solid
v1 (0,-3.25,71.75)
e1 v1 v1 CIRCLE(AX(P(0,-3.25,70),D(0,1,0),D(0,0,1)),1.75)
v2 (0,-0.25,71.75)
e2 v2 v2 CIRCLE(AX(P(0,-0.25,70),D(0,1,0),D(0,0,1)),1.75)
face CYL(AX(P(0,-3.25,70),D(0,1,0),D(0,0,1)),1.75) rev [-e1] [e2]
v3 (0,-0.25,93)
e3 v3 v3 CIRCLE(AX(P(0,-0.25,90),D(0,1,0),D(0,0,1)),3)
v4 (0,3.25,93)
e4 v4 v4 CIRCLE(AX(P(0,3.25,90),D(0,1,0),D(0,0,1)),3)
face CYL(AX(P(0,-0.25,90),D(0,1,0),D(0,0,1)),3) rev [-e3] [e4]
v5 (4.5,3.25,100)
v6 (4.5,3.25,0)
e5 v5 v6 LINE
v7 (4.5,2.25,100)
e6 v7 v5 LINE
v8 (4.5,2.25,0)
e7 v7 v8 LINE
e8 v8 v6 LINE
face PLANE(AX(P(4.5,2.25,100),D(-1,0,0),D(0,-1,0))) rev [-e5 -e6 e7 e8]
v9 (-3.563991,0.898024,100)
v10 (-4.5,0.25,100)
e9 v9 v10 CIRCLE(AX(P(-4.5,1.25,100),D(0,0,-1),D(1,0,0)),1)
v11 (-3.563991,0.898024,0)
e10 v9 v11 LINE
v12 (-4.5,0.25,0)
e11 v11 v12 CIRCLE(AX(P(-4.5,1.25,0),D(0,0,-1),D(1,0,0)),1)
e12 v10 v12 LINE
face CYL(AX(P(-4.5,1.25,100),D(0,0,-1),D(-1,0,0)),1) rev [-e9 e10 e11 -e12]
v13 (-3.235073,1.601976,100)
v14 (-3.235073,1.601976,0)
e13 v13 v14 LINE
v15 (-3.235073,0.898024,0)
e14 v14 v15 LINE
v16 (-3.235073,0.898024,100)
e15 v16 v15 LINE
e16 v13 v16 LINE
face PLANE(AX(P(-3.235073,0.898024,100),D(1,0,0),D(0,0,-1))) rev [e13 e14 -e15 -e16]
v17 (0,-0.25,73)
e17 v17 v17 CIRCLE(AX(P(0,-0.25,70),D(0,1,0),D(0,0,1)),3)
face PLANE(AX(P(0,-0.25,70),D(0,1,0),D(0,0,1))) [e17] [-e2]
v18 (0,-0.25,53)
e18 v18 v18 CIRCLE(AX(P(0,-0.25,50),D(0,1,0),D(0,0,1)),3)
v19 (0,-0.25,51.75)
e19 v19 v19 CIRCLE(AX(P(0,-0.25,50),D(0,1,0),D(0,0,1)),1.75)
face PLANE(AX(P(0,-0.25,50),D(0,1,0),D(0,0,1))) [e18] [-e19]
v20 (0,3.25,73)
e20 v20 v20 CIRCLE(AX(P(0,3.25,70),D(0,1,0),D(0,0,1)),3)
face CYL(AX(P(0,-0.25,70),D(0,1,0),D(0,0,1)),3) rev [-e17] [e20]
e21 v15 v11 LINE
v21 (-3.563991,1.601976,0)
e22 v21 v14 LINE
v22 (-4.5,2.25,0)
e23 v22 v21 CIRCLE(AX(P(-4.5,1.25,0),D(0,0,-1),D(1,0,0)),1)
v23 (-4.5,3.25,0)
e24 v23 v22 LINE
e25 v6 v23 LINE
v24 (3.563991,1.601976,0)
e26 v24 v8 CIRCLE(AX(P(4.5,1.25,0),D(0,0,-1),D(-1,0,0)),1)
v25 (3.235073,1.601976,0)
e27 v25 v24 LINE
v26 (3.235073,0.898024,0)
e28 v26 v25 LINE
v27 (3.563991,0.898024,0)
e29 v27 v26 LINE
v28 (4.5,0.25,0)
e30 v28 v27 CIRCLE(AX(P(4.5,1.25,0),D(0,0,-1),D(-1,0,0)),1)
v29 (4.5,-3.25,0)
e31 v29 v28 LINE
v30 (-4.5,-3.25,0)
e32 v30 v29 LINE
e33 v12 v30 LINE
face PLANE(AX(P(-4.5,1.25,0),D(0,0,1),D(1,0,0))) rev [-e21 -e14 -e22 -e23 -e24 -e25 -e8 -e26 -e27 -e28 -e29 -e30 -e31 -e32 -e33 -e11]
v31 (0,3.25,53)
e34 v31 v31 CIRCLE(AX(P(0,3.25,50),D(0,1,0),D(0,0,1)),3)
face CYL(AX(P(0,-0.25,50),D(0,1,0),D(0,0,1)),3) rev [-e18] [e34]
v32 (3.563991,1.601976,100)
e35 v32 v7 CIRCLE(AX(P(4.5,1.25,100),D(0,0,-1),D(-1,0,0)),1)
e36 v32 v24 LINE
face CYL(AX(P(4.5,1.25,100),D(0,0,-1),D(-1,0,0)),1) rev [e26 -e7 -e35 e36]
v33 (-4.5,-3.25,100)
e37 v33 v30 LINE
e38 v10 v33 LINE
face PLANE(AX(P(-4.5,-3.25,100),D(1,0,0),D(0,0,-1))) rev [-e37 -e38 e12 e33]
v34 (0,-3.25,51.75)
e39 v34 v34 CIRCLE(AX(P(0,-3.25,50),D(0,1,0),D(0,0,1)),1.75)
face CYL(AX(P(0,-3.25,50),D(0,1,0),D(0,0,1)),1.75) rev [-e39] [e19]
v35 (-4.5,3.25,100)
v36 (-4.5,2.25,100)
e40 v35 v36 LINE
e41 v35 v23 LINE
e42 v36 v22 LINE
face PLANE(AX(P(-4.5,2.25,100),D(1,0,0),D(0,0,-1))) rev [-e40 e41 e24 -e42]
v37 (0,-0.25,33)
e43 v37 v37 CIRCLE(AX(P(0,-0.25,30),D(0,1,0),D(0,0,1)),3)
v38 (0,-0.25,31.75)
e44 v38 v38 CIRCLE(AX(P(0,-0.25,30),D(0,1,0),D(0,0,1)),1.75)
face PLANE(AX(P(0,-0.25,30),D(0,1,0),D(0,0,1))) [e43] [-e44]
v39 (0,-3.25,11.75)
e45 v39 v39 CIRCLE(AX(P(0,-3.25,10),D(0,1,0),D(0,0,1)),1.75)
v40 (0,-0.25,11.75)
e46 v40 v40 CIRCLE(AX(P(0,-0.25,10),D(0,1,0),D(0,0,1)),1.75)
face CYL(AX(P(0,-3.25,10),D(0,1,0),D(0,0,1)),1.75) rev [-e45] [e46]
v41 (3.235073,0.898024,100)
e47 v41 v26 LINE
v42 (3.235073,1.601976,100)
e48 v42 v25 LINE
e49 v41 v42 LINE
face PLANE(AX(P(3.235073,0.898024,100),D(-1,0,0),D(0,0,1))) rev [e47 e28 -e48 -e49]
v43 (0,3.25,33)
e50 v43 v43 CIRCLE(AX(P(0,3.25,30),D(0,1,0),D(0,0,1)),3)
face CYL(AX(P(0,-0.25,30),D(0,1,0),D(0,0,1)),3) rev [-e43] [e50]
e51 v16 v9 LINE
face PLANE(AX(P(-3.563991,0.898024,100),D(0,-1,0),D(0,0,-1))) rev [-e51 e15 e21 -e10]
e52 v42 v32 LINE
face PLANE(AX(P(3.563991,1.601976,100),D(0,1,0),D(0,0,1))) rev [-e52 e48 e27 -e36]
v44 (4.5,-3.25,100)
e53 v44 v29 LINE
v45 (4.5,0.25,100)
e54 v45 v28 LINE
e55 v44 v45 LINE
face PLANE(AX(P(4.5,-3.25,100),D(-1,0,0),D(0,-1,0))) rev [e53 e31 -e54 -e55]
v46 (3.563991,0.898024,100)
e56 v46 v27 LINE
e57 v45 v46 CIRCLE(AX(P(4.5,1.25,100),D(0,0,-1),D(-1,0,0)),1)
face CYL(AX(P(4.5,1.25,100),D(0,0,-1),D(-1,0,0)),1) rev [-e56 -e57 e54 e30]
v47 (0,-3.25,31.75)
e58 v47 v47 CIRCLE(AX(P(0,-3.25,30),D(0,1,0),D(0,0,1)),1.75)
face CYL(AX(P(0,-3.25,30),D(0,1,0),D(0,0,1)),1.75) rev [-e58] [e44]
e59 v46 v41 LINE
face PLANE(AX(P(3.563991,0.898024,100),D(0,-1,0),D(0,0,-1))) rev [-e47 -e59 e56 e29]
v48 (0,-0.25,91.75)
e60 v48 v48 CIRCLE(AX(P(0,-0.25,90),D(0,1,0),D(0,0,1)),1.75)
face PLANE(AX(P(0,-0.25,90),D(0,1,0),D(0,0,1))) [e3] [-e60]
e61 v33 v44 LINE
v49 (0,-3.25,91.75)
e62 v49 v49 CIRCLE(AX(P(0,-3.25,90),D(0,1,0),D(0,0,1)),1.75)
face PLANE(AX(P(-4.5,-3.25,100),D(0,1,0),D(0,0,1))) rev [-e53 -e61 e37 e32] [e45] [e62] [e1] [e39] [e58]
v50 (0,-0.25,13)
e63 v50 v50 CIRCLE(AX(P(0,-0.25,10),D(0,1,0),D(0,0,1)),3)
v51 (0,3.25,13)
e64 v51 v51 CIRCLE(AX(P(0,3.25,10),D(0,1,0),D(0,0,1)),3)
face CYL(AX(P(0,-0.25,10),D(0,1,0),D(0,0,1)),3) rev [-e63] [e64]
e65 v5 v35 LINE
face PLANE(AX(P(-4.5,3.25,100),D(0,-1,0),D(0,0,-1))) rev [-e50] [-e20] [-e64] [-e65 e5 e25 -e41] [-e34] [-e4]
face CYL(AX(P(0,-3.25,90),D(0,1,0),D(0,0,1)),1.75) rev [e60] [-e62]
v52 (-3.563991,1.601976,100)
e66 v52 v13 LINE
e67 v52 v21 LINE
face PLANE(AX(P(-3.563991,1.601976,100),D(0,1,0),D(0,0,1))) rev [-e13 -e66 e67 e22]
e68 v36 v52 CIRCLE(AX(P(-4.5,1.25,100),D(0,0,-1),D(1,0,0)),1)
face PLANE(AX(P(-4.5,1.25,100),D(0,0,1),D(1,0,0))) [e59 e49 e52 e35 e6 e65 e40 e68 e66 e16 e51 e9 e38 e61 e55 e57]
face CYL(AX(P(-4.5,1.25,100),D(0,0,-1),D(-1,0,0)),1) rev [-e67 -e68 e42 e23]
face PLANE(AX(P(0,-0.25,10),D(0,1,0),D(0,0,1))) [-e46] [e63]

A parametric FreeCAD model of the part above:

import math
import FreeCAD as App
import Part
import Sketcher
from FreeCAD import Vector
Q = App.Units.Quantity

doc = App.newDocument("Part")
body = doc.addObject("PartDesign::Body", "Body")

# Sketch on XY plane
sketch1 = body.newObject("Sketcher::SketchObject", "Sketch")
sketch1.AttachmentSupport = (doc.getObject("XY_Plane"), [""])
sketch1.MapMode = "FlatFace"
sketch1.addGeometry([
    Part.LineSegment(Vector(-4.5, -3.25, 0), Vector(4.5, -3.25, 0)),  # 0
    Part.LineSegment(Vector(4.5, -3.25, 0), Vector(4.5, 0.25, 0)),  # 1
    Part.ArcOfCircle(Part.Circle(Vector(4.5, 1.25, 0), Vector(0, 0, 1), 1), math.radians(-159.39175), math.radians(-90)),  # 2
    Part.LineSegment(Vector(3.563991, 0.898024, 0), Vector(3.235073, 0.898024, 0)),  # 3
    Part.LineSegment(Vector(3.235073, 0.898024, 0), Vector(3.235073, 1.601976, 0)),  # 4
    Part.LineSegment(Vector(3.235073, 1.601976, 0), Vector(3.563991, 1.601976, 0)),  # 5
    Part.ArcOfCircle(Part.Circle(Vector(4.5, 1.25, 0), Vector(0, 0, 1), 1), math.radians(90), math.radians(159.39175)),  # 6
    Part.LineSegment(Vector(4.5, 2.25, 0), Vector(4.5, 3.25, 0)),  # 7
    Part.LineSegment(Vector(4.5, 3.25, 0), Vector(-4.5, 3.25, 0)),  # 8
    Part.LineSegment(Vector(-4.5, 3.25, 0), Vector(-4.5, 2.25, 0)),  # 9
    Part.ArcOfCircle(Part.Circle(Vector(-4.5, 1.25, 0), Vector(0, 0, 1), 1), math.radians(20.60825), math.radians(90)),  # 10
    Part.LineSegment(Vector(-3.563991, 1.601976, 0), Vector(-3.235073, 1.601976, 0)),  # 11
    Part.LineSegment(Vector(-3.235073, 1.601976, 0), Vector(-3.235073, 0.898024, 0)),  # 12
    Part.LineSegment(Vector(-3.235073, 0.898024, 0), Vector(-3.563991, 0.898024, 0)),  # 13
    Part.ArcOfCircle(Part.Circle(Vector(-4.5, 1.25, 0), Vector(0, 0, 1), 1), math.radians(-90), math.radians(-20.60825)),  # 14
    Part.LineSegment(Vector(-4.5, 0.25, 0), Vector(-4.5, -3.25, 0)),  # 15
], False)
sketch1.addConstraint([
    Sketcher.Constraint("Coincident", 0, 2, 1, 1),
    Sketcher.Constraint("Coincident", 1, 2, 2, 2),
    Sketcher.Constraint("Coincident", 2, 1, 3, 1),
    Sketcher.Constraint("Coincident", 3, 2, 4, 1),
    Sketcher.Constraint("Coincident", 4, 2, 5, 1),
    Sketcher.Constraint("Coincident", 5, 2, 6, 2),
    Sketcher.Constraint("Coincident", 6, 1, 7, 1),
    Sketcher.Constraint("Coincident", 7, 2, 8, 1),
    Sketcher.Constraint("Coincident", 8, 2, 9, 1),
    Sketcher.Constraint("Coincident", 9, 2, 10, 2),
    Sketcher.Constraint("Coincident", 10, 1, 11, 1),
    Sketcher.Constraint("Coincident", 11, 2, 12, 1),
    Sketcher.Constraint("Coincident", 12, 2, 13, 1),
    Sketcher.Constraint("Coincident", 13, 2, 14, 2),
    Sketcher.Constraint("Coincident", 14, 1, 15, 1),
    Sketcher.Constraint("Coincident", 15, 2, 0, 1),
    Sketcher.Constraint("Horizontal", 0),
    Sketcher.Constraint("Vertical", 1),
    Sketcher.Constraint("Horizontal", 3),
    Sketcher.Constraint("Vertical", 4),
    Sketcher.Constraint("Horizontal", 5),
    Sketcher.Constraint("Vertical", 7),
    Sketcher.Constraint("Horizontal", 8),
    Sketcher.Constraint("Vertical", 9),
    Sketcher.Constraint("Horizontal", 11),
    Sketcher.Constraint("Vertical", 12),
    Sketcher.Constraint("Horizontal", 13),
    Sketcher.Constraint("Vertical", 15),
    Sketcher.Constraint("Coincident", 6, 3, 2, 3),
    Sketcher.Constraint("Coincident", 14, 3, 10, 3),
    Sketcher.Constraint("Equal", 2, 6),
    Sketcher.Constraint("Equal", 6, 10),
    Sketcher.Constraint("Equal", 10, 14),
    Sketcher.Constraint("Symmetric", 0, 2, 8, 2, -1, 1),
    Sketcher.Constraint("Symmetric", 2, 3, 10, 3, -2),
    Sketcher.Constraint("Symmetric", 4, 2, 11, 2, -2),
    Sketcher.Constraint("Horizontal", 3, 2, 12, 2),
    Sketcher.Constraint("Vertical", 6, 3, 0, 2),
    Sketcher.Constraint("Vertical", 2, 1, 5, 2),
    Sketcher.Constraint("Vertical", 1, 2, 6, 1),
    Sketcher.Constraint("Vertical", 9, 2, 14, 1),
    Sketcher.Constraint("Radius", 2, Q("1 mm")),
    Sketcher.Constraint("DistanceX", 0, 1, 0, 2, Q("9 mm")),
    Sketcher.Constraint("DistanceY", 7, 1, 7, 2, Q("1 mm")),
    Sketcher.Constraint("DistanceY", 1, 1, 1, 2, Q("3.5 mm")),
    Sketcher.Constraint("DistanceX", 3, 2, 3, 1, Q("0.328918 mm")),
    Sketcher.Constraint("DistanceY", 4, 1, 4, 2, Q("0.703953 mm")),
])
pad1 = body.newObject("PartDesign::Pad", "Pad")
pad1.Profile = sketch1
pad1.Length = 100

# Sketch on XZ plane
sketch2 = body.newObject("Sketcher::SketchObject", "Sketch001")
sketch2.AttachmentSupport = (doc.getObject("XZ_Plane"), [""])
sketch2.MapMode = "FlatFace"
sketch2.AttachmentOffset = App.Placement(Vector(0, 0, -3.25), App.Rotation())
sketch2.addGeometry(Part.Circle(Vector(0, 10, 0), Vector(0, 0, 1), 3), False)
sketch2.addConstraint([
    Sketcher.Constraint("PointOnObject", 0, 3, -2),
    Sketcher.Constraint("Diameter", 0, Q("6 mm")),
    Sketcher.Constraint("DistanceY", -1, 1, 0, 3, Q("10 mm")),
])
pocket1 = body.newObject("PartDesign::Pocket", "Pocket")
pocket1.Profile = sketch2
pocket1.Length = 3.5
pocket1.Reversed = True

# Sketch on XZ plane
sketch3 = body.newObject("Sketcher::SketchObject", "Sketch002")
sketch3.AttachmentSupport = (doc.getObject("XZ_Plane"), [""])
sketch3.MapMode = "FlatFace"
sketch3.AttachmentOffset = App.Placement(Vector(0, 0, -3.25), App.Rotation())
sketch3.addGeometry(Part.Circle(Vector(0, 10, 0), Vector(0, 0, 1), 1.75), False)
sketch3.addConstraint([
    Sketcher.Constraint("PointOnObject", 0, 3, -2),
    Sketcher.Constraint("Diameter", 0, Q("3.5 mm")),
    Sketcher.Constraint("DistanceY", -1, 1, 0, 3, Q("10 mm")),
])
pocket2 = body.newObject("PartDesign::Pocket", "Pocket001")
pocket2.Profile = sketch3
pocket2.Type = "ThroughAll"
pocket2.Reversed = True
doc.recompute()

linearpattern = body.newObject("PartDesign::LinearPattern", "LinearPattern")
linearpattern.Originals = [pocket1, pocket2]
linearpattern.Direction = (doc.getObject("Z_Axis"), [""])
linearpattern.Mode = "offset"
linearpattern.Offset = 20
linearpattern.Occurrences = 13
body.Tip = linearpattern

doc.recompute()
